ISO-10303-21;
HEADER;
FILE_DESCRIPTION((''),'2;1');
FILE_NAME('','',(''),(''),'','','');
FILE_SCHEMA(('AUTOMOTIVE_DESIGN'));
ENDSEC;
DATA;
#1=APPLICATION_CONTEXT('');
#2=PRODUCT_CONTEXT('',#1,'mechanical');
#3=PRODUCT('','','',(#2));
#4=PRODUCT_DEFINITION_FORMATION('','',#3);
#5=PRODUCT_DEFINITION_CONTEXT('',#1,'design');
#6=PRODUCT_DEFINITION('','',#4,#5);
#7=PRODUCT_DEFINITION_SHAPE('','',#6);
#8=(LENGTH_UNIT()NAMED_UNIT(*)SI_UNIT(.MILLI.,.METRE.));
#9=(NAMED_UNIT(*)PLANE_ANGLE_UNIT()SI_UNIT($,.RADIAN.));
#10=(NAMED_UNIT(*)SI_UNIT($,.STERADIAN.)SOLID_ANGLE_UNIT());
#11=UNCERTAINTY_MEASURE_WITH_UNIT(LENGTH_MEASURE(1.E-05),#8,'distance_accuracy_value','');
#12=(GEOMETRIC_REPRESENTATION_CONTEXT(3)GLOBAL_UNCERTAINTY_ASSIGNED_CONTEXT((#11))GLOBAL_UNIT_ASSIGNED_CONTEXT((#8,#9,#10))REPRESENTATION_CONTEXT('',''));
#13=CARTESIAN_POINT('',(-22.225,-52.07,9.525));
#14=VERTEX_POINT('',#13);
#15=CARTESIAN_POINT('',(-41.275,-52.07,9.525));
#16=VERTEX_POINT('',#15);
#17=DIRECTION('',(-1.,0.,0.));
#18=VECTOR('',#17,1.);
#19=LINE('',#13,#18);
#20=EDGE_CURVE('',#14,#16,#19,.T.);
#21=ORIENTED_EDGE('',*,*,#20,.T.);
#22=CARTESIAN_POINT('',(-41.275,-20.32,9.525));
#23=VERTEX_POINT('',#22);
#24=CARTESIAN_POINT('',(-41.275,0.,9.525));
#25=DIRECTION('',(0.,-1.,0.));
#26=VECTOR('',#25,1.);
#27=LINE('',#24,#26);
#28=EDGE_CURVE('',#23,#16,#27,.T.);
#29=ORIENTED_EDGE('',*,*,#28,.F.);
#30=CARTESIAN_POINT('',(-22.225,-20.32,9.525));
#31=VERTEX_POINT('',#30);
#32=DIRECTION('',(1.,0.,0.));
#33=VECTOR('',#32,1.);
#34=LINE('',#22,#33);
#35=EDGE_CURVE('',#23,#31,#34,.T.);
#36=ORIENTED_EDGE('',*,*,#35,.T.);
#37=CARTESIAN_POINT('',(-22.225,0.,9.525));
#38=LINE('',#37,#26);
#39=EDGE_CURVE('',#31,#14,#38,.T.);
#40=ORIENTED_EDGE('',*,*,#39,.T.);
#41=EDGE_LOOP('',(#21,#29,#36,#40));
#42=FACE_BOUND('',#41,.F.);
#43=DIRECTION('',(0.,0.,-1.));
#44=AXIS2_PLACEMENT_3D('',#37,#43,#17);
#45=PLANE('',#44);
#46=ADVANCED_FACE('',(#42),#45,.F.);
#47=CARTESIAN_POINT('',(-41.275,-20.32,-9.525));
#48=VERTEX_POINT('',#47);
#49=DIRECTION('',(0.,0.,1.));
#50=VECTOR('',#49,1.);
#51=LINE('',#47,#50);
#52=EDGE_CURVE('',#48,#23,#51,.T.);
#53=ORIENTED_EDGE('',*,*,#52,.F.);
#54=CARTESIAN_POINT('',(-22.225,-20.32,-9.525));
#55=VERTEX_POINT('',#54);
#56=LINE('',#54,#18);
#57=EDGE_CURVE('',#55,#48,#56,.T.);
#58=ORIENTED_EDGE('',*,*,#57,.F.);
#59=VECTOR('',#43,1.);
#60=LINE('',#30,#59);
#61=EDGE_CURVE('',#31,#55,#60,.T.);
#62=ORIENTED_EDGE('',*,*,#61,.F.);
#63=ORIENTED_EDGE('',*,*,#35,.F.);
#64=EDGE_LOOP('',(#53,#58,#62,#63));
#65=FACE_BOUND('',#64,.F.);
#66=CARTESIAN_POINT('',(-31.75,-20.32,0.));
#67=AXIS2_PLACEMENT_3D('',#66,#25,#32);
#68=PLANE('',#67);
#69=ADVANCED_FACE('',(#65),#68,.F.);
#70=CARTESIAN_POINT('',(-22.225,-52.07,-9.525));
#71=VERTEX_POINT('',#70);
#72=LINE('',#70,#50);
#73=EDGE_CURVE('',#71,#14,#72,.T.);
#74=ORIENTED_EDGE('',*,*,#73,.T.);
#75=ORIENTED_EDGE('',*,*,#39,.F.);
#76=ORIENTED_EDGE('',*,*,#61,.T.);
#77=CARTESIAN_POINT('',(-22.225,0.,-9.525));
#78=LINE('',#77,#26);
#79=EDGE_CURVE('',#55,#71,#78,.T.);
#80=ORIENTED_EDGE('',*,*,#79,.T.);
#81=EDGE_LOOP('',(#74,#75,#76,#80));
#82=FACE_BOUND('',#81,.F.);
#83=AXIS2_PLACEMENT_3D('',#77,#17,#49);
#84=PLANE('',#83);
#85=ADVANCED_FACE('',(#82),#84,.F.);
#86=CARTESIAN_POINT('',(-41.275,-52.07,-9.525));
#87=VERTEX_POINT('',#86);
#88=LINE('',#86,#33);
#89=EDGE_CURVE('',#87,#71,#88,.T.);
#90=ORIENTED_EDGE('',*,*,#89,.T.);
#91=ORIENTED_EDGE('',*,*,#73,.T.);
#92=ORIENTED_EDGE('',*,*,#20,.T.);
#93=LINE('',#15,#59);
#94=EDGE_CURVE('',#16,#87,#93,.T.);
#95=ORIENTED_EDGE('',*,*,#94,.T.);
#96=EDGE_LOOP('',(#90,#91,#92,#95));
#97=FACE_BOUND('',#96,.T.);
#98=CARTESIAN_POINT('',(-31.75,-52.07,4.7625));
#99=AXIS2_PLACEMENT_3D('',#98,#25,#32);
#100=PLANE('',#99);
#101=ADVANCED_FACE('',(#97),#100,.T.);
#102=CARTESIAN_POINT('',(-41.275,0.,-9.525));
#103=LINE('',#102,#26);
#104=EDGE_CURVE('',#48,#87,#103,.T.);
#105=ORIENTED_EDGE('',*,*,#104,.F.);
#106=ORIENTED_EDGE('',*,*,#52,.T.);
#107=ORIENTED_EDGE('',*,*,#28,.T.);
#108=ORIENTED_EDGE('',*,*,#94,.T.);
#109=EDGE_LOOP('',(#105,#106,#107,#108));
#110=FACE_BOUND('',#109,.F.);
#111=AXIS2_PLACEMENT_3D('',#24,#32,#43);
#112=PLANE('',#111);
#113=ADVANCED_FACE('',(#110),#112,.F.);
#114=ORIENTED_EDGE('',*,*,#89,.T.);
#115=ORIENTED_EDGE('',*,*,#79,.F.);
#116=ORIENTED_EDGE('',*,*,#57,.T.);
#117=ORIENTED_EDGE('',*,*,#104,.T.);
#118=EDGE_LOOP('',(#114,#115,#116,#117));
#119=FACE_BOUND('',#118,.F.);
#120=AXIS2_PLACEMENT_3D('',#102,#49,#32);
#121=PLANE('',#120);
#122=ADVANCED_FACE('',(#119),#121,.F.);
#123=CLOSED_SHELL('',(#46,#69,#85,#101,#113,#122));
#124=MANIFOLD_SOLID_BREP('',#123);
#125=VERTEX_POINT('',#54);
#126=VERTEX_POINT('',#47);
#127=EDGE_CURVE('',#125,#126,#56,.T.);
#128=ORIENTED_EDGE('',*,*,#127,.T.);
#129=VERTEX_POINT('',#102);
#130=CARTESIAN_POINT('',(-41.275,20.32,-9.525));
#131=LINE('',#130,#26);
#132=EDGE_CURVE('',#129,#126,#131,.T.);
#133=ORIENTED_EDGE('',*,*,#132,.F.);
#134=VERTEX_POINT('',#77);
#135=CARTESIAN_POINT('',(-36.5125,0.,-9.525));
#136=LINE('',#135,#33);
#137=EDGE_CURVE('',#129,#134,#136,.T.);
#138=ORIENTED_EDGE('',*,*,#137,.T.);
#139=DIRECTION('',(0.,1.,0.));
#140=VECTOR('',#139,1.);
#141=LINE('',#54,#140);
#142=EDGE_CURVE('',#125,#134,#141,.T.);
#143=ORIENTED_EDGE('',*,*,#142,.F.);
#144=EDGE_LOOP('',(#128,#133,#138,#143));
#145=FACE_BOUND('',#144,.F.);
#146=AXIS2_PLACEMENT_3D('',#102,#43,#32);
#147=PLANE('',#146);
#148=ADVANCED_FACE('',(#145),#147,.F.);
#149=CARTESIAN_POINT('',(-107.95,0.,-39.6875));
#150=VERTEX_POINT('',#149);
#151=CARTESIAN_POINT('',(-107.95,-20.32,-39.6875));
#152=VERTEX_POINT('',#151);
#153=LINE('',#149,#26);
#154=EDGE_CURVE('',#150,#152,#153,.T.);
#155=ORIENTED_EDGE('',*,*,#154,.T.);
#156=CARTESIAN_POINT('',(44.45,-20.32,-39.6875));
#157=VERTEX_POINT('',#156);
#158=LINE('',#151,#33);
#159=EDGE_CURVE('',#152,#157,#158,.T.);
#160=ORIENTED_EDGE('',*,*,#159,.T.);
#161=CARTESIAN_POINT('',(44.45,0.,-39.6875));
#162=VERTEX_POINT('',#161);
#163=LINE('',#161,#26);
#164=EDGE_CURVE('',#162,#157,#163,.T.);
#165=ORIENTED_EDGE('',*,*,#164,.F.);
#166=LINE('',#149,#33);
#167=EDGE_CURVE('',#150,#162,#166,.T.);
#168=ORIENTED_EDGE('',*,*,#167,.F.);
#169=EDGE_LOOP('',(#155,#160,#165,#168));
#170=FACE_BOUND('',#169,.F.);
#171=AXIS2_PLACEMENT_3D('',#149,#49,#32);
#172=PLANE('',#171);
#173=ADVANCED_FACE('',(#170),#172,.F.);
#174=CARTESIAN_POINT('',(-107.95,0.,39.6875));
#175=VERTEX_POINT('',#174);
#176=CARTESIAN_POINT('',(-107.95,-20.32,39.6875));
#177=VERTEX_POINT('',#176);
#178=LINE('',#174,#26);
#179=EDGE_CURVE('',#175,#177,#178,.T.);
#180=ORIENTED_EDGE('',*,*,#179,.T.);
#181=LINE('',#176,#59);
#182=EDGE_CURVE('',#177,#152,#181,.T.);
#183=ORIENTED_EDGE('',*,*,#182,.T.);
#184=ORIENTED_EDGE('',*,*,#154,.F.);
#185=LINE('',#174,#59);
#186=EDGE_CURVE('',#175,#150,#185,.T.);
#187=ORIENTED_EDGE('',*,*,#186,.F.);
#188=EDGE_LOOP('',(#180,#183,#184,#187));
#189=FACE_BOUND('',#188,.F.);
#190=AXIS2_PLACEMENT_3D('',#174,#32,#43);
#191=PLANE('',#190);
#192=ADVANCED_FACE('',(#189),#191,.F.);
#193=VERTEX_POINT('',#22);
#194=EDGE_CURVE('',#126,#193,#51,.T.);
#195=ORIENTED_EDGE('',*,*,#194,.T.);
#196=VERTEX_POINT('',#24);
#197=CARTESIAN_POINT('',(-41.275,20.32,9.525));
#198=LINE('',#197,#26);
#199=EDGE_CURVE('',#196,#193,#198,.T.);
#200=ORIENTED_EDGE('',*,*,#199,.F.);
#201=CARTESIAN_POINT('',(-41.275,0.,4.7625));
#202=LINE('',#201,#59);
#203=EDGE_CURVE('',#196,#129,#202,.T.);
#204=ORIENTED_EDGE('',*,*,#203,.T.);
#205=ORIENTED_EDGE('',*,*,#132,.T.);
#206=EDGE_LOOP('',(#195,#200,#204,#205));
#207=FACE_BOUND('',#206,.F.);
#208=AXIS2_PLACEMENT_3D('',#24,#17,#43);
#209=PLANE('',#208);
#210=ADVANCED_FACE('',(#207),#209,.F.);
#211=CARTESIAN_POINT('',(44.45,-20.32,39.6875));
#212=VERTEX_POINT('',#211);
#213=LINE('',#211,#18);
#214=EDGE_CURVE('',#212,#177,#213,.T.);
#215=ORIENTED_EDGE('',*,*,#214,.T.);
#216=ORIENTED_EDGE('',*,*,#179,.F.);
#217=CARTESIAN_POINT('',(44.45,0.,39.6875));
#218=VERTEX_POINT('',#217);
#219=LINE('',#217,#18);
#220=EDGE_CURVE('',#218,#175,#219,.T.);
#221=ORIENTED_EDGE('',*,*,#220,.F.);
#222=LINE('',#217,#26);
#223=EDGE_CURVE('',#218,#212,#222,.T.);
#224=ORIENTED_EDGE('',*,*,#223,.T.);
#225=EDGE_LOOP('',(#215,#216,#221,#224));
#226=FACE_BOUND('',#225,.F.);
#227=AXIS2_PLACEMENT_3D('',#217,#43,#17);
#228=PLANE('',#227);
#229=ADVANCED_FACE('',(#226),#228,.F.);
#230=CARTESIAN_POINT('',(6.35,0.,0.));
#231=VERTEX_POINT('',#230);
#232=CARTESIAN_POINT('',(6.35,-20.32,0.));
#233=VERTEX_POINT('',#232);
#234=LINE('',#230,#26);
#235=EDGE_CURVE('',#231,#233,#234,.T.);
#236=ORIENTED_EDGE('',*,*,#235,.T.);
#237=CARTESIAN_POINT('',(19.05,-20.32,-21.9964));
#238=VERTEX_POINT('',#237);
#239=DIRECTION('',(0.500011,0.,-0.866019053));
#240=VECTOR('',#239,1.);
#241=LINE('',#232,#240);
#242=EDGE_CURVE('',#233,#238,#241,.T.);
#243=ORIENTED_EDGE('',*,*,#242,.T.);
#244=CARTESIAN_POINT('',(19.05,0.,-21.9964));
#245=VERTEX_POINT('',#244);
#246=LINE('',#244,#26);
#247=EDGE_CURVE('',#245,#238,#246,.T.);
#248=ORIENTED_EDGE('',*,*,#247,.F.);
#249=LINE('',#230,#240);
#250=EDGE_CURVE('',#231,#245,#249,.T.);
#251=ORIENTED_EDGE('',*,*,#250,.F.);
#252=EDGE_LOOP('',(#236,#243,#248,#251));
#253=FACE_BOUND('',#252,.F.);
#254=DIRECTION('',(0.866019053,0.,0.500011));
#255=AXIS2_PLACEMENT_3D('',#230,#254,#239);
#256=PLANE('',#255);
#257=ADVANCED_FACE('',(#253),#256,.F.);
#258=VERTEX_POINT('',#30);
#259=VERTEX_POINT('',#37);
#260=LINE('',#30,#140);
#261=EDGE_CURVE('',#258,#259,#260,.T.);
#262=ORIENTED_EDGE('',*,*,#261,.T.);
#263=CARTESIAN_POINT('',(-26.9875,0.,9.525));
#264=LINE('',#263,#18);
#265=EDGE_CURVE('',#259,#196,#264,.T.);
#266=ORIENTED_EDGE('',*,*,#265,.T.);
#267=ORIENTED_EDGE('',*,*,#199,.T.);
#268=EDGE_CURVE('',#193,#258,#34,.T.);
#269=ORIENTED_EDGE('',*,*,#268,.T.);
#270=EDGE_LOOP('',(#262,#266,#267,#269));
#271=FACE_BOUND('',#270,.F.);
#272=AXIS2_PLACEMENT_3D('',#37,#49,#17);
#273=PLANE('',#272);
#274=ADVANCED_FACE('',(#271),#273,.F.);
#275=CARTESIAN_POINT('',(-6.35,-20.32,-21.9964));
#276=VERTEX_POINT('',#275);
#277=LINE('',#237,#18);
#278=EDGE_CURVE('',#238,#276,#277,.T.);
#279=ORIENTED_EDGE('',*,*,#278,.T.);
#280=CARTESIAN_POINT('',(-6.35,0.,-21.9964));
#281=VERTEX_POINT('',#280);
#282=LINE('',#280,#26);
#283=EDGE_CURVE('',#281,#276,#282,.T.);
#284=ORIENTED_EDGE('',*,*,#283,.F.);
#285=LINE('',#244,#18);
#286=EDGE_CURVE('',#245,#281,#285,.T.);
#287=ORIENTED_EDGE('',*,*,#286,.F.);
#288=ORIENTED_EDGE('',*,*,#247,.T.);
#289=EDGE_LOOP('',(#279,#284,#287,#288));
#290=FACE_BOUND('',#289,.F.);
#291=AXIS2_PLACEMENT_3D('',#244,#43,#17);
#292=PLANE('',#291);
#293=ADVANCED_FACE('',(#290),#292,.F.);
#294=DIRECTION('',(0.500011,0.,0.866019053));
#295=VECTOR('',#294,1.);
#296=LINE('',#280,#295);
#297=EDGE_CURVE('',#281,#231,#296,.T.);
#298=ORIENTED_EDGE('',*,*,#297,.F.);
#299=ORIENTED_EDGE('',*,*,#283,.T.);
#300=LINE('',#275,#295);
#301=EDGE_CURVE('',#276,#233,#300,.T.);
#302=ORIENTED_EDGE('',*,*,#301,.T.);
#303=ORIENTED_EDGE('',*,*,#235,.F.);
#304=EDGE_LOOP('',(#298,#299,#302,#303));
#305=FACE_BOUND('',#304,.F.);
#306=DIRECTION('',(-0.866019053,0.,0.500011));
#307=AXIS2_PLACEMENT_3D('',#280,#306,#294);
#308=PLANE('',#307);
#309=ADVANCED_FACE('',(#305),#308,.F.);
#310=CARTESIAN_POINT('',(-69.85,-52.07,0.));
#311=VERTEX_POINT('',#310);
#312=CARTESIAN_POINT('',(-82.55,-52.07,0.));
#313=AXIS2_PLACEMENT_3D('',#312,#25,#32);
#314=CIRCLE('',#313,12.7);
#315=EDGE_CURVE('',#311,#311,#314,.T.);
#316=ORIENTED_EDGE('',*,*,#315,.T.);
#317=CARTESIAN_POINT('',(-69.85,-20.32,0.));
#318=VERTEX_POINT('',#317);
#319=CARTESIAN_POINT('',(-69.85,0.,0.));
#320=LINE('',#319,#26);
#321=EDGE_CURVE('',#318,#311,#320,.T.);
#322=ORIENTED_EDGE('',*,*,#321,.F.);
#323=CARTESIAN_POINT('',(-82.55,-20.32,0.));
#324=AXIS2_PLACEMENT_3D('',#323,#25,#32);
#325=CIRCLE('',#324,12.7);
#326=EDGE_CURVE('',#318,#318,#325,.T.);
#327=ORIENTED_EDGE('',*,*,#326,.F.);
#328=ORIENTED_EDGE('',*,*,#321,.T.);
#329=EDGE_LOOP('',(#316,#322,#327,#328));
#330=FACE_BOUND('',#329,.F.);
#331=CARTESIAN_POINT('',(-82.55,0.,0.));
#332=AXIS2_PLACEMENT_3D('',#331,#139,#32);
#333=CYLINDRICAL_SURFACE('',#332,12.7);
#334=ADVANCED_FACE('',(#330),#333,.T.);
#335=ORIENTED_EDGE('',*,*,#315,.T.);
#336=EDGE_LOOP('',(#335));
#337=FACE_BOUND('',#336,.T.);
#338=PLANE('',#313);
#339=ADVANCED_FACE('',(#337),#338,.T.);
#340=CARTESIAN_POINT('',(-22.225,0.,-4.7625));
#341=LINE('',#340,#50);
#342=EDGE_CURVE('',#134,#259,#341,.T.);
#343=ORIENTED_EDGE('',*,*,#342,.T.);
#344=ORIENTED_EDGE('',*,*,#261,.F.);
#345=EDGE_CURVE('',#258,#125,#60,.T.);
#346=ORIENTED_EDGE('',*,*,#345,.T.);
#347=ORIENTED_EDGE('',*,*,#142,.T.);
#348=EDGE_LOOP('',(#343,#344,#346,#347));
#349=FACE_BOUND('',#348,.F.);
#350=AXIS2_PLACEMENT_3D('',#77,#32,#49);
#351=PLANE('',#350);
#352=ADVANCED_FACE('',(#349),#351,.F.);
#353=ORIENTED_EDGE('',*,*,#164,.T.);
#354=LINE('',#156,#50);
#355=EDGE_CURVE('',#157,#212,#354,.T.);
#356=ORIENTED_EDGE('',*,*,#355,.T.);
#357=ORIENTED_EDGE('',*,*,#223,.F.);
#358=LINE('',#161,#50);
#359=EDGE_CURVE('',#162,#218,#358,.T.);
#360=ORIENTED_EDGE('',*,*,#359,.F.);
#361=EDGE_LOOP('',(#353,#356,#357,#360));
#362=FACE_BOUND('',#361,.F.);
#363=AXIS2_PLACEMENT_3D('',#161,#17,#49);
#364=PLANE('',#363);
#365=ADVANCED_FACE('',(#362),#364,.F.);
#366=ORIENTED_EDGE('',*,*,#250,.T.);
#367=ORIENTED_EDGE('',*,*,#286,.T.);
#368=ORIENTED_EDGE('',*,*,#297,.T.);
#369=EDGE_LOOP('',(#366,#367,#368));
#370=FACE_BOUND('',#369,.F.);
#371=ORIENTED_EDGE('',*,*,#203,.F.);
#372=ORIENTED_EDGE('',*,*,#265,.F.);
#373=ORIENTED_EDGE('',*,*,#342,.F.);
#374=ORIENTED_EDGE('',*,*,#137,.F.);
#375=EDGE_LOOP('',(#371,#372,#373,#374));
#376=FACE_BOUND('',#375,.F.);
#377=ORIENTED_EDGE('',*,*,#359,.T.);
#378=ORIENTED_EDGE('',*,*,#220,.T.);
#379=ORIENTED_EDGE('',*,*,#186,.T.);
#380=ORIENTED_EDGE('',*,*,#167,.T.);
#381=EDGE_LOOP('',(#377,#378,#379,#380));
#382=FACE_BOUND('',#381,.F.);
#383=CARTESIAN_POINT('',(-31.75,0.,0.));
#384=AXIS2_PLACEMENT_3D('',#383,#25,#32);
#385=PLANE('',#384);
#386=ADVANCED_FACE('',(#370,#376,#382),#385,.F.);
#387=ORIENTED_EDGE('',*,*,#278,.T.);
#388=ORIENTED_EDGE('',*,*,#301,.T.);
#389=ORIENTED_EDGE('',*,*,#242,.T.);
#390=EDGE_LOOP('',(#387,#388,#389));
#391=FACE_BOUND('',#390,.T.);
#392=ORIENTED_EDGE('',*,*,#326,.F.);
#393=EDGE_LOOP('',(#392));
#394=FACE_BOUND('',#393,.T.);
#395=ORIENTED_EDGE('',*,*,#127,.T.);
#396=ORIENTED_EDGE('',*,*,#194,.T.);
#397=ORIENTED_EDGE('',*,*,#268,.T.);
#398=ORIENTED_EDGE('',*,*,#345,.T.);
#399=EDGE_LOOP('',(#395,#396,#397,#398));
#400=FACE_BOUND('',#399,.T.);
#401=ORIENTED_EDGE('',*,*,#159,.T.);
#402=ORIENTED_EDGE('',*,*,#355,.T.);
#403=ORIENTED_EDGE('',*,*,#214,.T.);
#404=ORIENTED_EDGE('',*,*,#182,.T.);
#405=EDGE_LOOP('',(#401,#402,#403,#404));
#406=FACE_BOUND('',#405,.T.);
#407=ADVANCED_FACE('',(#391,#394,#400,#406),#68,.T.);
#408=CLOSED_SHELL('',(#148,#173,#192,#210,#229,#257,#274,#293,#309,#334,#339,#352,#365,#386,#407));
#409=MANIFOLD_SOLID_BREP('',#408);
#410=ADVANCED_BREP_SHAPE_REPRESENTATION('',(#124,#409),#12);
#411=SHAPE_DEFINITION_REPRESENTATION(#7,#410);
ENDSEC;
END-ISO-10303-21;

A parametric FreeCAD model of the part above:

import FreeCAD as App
import Part
import Sketcher
Q = App.Units.Quantity


def add_polygon(sketch, points):
    """Adds a closed chain of lines whose ends are joined by coincident constraints."""
    first, n = sketch.GeometryCount, len(points)
    for a, b in zip(points, points[1:] + points[:1]):
        sketch.addGeometry(Part.LineSegment(App.Vector(*a, 0), App.Vector(*b, 0)), False)
    for i in range(n):
        sketch.addConstraint(Sketcher.Constraint("Coincident", first + i, 2, first + (i + 1) % n, 1))

doc = App.newDocument("Part")
params = doc.addObject("Spreadsheet::Sheet", "Params")
for row, (alias, value) in enumerate([
    ("sketch1_diameter", "1 in"),
    ("sketch1_width", "6 in"),
    ("sketch1_width2", "1 in"),
    ("sketch1_width3", "0.75 in"),
    ("sketch1_height", "3.125 in"),
    ("pad1_length", "0.8 in"),
    ("sketch2_width", "1 in"),
    ("pocket1_length", "0.8 in"),
    ("sketch3_diameter", "1 in"),
    ("pad2_length", "2.05 in"),
    ("sketch4_width", "0.75 in"),
    ("pad3_length", "2.05 in"),
    ("sketch5_width", "0.75 in"),
    ("pocket2_length", "1.6 in"),
], start=1):
    params.set(f"A{row}", alias)
    params.set(f"B{row}", "=" + value)
    params.setAlias(f"B{row}", alias)

body = doc.addObject("PartDesign::Body", "Body")
body.AllowCompound = True

# Sketch on XZ plane
sketch1 = doc.addObject("Sketcher::SketchObject", "Sketch")
body.addObject(sketch1)
sketch1.AttachmentSupport = (doc.XZ_Plane, [""])
sketch1.MapMode = "FlatFace"
add_polygon(sketch1, [(44, -40), (44, 40), (-108, 40), (-108, -40)])  # lines 0-3
add_polygon(sketch1, [(19, -22), (-6, -22), (6, 0)])  # lines 4-6
sketch1.addGeometry(Part.Circle(App.Vector(-83, 0, 0), App.Vector(0, 0, 1), 13), False)  # 7
add_polygon(sketch1, [(-41, 10), (-22, 10), (-22, -10), (-41, -10)])  # lines 8-11
sketch1.addConstraint([
    Sketcher.Constraint("Vertical", 0),
    Sketcher.Constraint("Horizontal", 1),
    Sketcher.Constraint("Vertical", 2),
    Sketcher.Constraint("Horizontal", 3),
    Sketcher.Constraint("Horizontal", 4),
    Sketcher.Constraint("Horizontal", 8),
    Sketcher.Constraint("Vertical", 9),
    Sketcher.Constraint("Horizontal", 10),
    Sketcher.Constraint("Vertical", 11),
    Sketcher.Constraint("PointOnObject", 7, 3, -1),
    Sketcher.Constraint("PointOnObject", 5, 2, -1),
    Sketcher.Constraint("Equal", 10, 9),
    Sketcher.Constraint("Equal", 5, 6),
    Sketcher.Constraint("Diameter", 7, Q("1 in")),
    Sketcher.Constraint("DistanceX", 1, 2, 1, 1, Q("6 in")),
    Sketcher.Constraint("DistanceX", 4, 2, 4, 1, Q("1 in")),
    Sketcher.Constraint("DistanceX", 7, 3, 0, 2, Q("5 in")),
    Sketcher.Constraint("DistanceX", 4, 2, 3, 2, Q("2 in")),
    Sketcher.Constraint("DistanceX", 8, 1, 8, 2, Q("0.75 in")),
    Sketcher.Constraint("DistanceY", 0, 1, 0, 2, Q("3.125 in")),
    Sketcher.Constraint("DistanceX", 7, 3, -1, 1, Q("3.25 in")),
    Sketcher.Constraint("DistanceY", -1, 1, 0, 2, Q("1.5625 in")),
    Sketcher.Constraint("DistanceY", 4, 2, -1, 1, Q("0.866 in")),
    Sketcher.Constraint("DistanceX", 8, 2, -1, 1, Q("0.875 in")),
    Sketcher.Constraint("DistanceY", -1, 1, 8, 2, Q("0.375 in")),
])
sketch1.setExpression("Constraints[24]", "Params.sketch1_diameter")
sketch1.setExpression("Constraints[25]", "Params.sketch1_width")
sketch1.setExpression("Constraints[26]", "Params.sketch1_width2")
sketch1.setExpression("Constraints[29]", "Params.sketch1_width3")
sketch1.setExpression("Constraints[30]", "Params.sketch1_height")
pad1 = doc.addObject("PartDesign::Pad", "Pad")
body.addObject(pad1)
pad1.Profile = sketch1
pad1.setExpression("Length", "Params.pad1_length")

# Sketch on XZ plane
sketch2 = doc.addObject("Sketcher::SketchObject", "Sketch001")
body.addObject(sketch2)
sketch2.AttachmentSupport = (doc.XZ_Plane, [""])
sketch2.MapMode = "FlatFace"
add_polygon(sketch2, [(19, -22), (6, 0), (-6, -22)])  # lines 0-2
sketch2.addConstraint([
    Sketcher.Constraint("Horizontal", 2),
    Sketcher.Constraint("PointOnObject", 0, 2, -1),
    Sketcher.Constraint("Equal", 0, 1),
    Sketcher.Constraint("DistanceX", 2, 1, 2, 2, Q("1 in")),
    Sketcher.Constraint("DistanceX", -1, 1, 0, 2, Q("0.25 in")),
    Sketcher.Constraint("DistanceY", 1, 2, -1, 1, Q("0.866 in")),
])
sketch2.setExpression("Constraints[6]", "Params.sketch2_width")
pocket1 = doc.addObject("PartDesign::Pocket", "Pocket")
body.addObject(pocket1)
pocket1.Profile = sketch2
pocket1.setExpression("Length", "Params.pocket1_length")
pocket1.Reversed = True

# Sketch on XZ plane
sketch3 = doc.addObject("Sketcher::SketchObject", "Sketch002")
body.addObject(sketch3)
sketch3.AttachmentSupport = (doc.XZ_Plane, [""])
sketch3.MapMode = "FlatFace"
sketch3.addGeometry(Part.Circle(App.Vector(-83, 0, 0), App.Vector(0, 0, 1), 13), False)
sketch3.addConstraint([
    Sketcher.Constraint("PointOnObject", 0, 3, -1),
    Sketcher.Constraint("Diameter", 0, Q("1 in")),
    Sketcher.Constraint("DistanceX", 0, 3, -1, 1, Q("3.25 in")),
])
sketch3.setExpression("Constraints[1]", "Params.sketch3_diameter")
pad2 = doc.addObject("PartDesign::Pad", "Pad001")
body.addObject(pad2)
pad2.Profile = sketch3
pad2.setExpression("Length", "Params.pad2_length")

# Sketch on XZ plane
sketch4 = doc.addObject("Sketcher::SketchObject", "Sketch003")
body.addObject(sketch4)
sketch4.AttachmentSupport = (doc.XZ_Plane, [""])
sketch4.MapMode = "FlatFace"
add_polygon(sketch4, [(-22, 10), (-41, 10), (-41, -10), (-22, -10)])  # lines 0-3
sketch4.addConstraint([
    Sketcher.Constraint("Horizontal", 0),
    Sketcher.Constraint("Vertical", 1),
    Sketcher.Constraint("Horizontal", 2),
    Sketcher.Constraint("Vertical", 3),
    Sketcher.Constraint("Equal", 2, 1),
    Sketcher.Constraint("DistanceX", 0, 2, 0, 1, Q("0.75 in")),
    Sketcher.Constraint("DistanceX", 0, 2, -1, 1, Q("1.625 in")),
    Sketcher.Constraint("DistanceY", -1, 1, 0, 2, Q("0.375 in")),
])
sketch4.setExpression("Constraints[9]", "Params.sketch4_width")
pad3 = doc.addObject("PartDesign::Pad", "Pad002")
body.addObject(pad3)
pad3.Profile = sketch4
pad3.setExpression("Length", "Params.pad3_length")

# Sketch on XZ plane
sketch5 = doc.addObject("Sketcher::SketchObject", "Sketch004")
body.addObject(sketch5)
sketch5.AttachmentSupport = (doc.XZ_Plane, [""])
sketch5.MapMode = "FlatFace"
add_polygon(sketch5, [(-22, 10), (-41, 10), (-41, -10), (-22, -10)])  # lines 0-3
sketch5.addConstraint([
    Sketcher.Constraint("Horizontal", 0),
    Sketcher.Constraint("Vertical", 1),
    Sketcher.Constraint("Horizontal", 2),
    Sketcher.Constraint("Vertical", 3),
    Sketcher.Constraint("Equal", 2, 1),
    Sketcher.Constraint("DistanceX", 0, 2, 0, 1, Q("0.75 in")),
    Sketcher.Constraint("DistanceX", 0, 2, -1, 1, Q("1.625 in")),
    Sketcher.Constraint("DistanceY", -1, 1, 0, 2, Q("0.375 in")),
])
sketch5.setExpression("Constraints[9]", "Params.sketch5_width")
pocket2 = doc.addObject("PartDesign::Pocket", "Pocket001")
body.addObject(pocket2)
pocket2.Profile = sketch5
pocket2.setExpression("Length", "Params.pocket2_length")
pocket2.Midplane = True

doc.recompute()
